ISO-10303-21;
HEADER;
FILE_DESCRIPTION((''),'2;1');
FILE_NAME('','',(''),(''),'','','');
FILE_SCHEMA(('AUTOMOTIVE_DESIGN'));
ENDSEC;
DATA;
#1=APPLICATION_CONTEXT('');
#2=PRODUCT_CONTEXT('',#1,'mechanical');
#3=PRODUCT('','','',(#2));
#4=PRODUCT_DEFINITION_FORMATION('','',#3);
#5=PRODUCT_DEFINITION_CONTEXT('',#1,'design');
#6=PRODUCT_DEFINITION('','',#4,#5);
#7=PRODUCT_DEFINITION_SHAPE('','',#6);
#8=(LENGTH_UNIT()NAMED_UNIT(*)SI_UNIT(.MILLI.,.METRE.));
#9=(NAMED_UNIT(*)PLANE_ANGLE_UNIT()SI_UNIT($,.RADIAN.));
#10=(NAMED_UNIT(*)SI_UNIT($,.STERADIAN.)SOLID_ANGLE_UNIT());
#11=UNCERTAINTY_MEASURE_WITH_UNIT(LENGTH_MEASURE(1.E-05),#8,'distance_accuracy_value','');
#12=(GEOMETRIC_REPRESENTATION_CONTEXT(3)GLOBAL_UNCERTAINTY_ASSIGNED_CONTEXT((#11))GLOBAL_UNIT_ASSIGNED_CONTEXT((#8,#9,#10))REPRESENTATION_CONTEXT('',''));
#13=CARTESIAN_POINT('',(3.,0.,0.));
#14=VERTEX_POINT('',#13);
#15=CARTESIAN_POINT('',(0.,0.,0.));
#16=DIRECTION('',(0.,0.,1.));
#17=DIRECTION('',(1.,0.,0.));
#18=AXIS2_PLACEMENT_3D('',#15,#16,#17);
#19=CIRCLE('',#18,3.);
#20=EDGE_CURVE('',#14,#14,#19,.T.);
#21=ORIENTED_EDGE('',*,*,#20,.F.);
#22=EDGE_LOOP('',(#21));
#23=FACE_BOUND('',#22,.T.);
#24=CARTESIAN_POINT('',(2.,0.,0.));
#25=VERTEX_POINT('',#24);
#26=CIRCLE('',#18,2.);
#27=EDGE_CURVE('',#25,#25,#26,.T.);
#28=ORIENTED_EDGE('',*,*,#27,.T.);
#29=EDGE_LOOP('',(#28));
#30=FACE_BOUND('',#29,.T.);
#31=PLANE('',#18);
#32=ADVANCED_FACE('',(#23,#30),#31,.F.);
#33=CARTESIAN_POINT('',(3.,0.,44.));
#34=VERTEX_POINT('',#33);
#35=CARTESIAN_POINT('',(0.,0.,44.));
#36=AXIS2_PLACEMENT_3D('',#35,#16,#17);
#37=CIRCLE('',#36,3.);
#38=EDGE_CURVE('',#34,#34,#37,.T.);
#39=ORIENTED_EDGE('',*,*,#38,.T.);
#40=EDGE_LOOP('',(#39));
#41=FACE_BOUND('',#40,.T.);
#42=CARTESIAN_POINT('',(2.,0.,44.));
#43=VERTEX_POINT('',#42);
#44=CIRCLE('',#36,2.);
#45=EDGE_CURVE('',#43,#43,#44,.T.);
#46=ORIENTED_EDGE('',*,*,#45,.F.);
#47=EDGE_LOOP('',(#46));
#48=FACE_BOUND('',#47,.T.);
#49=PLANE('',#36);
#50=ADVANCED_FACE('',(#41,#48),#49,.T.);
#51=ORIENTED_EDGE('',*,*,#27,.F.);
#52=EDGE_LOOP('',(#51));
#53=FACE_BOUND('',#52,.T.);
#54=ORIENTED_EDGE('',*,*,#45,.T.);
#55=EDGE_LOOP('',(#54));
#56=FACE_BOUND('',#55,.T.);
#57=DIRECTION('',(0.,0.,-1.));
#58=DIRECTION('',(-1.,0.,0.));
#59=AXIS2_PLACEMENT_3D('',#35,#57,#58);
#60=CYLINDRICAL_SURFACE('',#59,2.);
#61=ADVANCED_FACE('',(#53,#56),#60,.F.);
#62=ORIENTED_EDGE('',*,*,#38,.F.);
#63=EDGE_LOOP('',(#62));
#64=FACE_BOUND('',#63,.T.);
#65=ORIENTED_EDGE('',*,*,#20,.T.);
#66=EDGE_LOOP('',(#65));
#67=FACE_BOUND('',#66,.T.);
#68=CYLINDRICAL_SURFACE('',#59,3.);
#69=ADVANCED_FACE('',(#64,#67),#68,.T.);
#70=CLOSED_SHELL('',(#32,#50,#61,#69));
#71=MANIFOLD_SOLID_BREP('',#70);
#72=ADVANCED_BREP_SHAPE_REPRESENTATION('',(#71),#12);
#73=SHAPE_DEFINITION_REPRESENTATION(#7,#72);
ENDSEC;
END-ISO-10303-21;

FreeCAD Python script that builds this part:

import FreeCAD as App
import Part
import Sketcher
from FreeCAD import Vector

doc = App.newDocument("Part")
body = doc.addObject("PartDesign::Body", "Body")

sketch1 = body.newObject("Sketcher::SketchObject", "Sketch")
sketch1.AttachmentSupport = (doc.getObject("XY_Plane"), [""])
sketch1.MapMode = "FlatFace"
sketch1.addGeometry(Part.Circle(Vector(0, 0, 0), Vector(0, 0, 1), 3), False)
sketch1.addGeometry(Part.Circle(Vector(0, 0, 0), Vector(0, 0, 1), 2), False)
sketch1.addConstraint(Sketcher.Constraint("Coincident", 0, 3, -1, 1))
sketch1.addConstraint(Sketcher.Constraint("Coincident", 1, 3, -1, 1))
sketch1.addConstraint(Sketcher.Constraint("Diameter", 0, 6.0))
sketch1.addConstraint(Sketcher.Constraint("Diameter", 1, 4.0))
pad1 = body.newObject("PartDesign::Pad", "Pad")
pad1.Profile = sketch1
pad1.Length = 44

doc.recompute()
